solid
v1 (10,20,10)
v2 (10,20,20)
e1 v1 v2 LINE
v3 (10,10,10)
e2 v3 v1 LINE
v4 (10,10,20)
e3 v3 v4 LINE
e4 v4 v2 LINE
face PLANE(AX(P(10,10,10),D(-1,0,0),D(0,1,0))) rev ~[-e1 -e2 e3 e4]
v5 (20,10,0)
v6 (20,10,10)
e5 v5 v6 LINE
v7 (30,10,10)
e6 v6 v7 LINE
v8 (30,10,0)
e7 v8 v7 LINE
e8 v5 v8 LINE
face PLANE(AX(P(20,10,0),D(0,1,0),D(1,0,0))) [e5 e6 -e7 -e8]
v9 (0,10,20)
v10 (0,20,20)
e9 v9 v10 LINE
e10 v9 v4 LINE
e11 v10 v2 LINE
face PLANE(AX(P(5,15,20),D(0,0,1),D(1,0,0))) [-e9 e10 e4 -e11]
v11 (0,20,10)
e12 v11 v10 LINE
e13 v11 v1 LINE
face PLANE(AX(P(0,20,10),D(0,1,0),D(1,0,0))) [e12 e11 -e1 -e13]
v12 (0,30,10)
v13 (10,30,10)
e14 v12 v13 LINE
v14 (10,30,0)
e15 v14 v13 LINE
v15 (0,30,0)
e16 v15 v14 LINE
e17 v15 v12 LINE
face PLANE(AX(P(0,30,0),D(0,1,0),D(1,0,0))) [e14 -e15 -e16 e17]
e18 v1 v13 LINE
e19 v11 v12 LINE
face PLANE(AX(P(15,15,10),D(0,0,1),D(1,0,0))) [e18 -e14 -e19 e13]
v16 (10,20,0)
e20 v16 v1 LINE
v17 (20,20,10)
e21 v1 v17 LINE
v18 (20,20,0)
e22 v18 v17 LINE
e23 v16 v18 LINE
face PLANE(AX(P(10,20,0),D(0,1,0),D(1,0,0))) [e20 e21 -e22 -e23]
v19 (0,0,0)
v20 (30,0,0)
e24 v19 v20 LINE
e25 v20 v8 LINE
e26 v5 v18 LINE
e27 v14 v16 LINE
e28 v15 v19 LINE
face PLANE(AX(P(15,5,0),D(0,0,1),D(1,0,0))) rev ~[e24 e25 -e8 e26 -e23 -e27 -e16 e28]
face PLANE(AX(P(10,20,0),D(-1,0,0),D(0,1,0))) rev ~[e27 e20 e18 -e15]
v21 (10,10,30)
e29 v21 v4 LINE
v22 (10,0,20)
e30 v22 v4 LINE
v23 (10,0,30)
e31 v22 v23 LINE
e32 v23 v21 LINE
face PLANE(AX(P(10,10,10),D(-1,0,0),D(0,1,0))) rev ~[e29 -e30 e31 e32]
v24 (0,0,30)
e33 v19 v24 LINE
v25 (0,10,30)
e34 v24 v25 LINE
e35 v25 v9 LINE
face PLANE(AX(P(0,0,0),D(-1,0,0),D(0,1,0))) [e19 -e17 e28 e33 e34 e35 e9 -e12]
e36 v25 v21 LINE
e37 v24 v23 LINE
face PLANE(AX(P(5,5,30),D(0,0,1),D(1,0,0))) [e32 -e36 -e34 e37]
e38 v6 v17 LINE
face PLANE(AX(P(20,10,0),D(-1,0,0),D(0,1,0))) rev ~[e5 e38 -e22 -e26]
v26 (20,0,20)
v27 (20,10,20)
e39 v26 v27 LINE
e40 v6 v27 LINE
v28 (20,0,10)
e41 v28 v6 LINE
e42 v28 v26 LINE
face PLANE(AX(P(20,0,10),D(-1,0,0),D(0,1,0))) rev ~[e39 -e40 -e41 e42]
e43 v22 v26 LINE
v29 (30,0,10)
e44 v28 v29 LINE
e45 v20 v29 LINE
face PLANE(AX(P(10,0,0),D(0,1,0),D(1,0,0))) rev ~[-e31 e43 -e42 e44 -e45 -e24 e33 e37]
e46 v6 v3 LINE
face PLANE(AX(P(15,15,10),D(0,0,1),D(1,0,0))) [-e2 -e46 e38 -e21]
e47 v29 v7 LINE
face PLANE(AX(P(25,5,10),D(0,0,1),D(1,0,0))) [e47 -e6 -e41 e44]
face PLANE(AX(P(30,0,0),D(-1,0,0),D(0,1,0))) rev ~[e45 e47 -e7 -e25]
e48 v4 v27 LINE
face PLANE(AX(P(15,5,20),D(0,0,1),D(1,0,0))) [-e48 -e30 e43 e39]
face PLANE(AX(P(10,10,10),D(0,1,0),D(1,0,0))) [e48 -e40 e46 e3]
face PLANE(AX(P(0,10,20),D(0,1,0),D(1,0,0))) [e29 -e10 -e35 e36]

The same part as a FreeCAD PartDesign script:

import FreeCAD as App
import Part
import Sketcher
from FreeCAD import Vector


def add_polygon(sketch, points):
    """Adds a closed chain of lines whose ends are joined by coincident constraints."""
    first, n = sketch.GeometryCount, len(points)
    for a, b in zip(points, points[1:] + points[:1]):
        sketch.addGeometry(Part.LineSegment(App.Vector(*a, 0), App.Vector(*b, 0)), False)
    for i in range(n):
        sketch.addConstraint(Sketcher.Constraint("Coincident", first + i, 2, first + (i + 1) % n, 1))

doc = App.newDocument("Part")
body = doc.addObject("PartDesign::Body", "Body")

# Sketch on XY plane
sketch1 = body.newObject("Sketcher::SketchObject", "Sketch")
sketch1.AttachmentSupport = (doc.getObject("XY_Plane"), [""])
sketch1.MapMode = "FlatFace"
add_polygon(sketch1, [(20, 10), (20, 0), (30, 0), (30, 10)])  # lines 0-3
sketch1.addConstraint([
    Sketcher.Constraint("Vertical", 0),
    Sketcher.Constraint("Horizontal", 1),
    Sketcher.Constraint("Vertical", 2),
    Sketcher.Constraint("Horizontal", 3),
    Sketcher.Constraint("PointOnObject", 0, 2, -1),
    Sketcher.Constraint("Equal", 3, 0),
    Sketcher.Constraint("DistanceX", 1, 1, 1, 2, 10.0),
    Sketcher.Constraint("DistanceX", -1, 1, 0, 2, 20.0),
])
pad1 = body.newObject("PartDesign::Pad", "Pad")
pad1.Profile = sketch1
pad1.Length = 10
body2 = doc.addObject("PartDesign::Body", "Body001")

# Sketch on XY plane
sketch2 = body2.newObject("Sketcher::SketchObject", "Sketch001")
sketch2.AttachmentSupport = (doc.getObject("XY_Plane001"), [""])
sketch2.MapMode = "FlatFace"
add_polygon(sketch2, [(0, 30), (0, 20), (10, 20), (10, 30)])  # lines 0-3
sketch2.addConstraint([
    Sketcher.Constraint("Vertical", 0),
    Sketcher.Constraint("Horizontal", 1),
    Sketcher.Constraint("Vertical", 2),
    Sketcher.Constraint("Horizontal", 3),
    Sketcher.Constraint("PointOnObject", 0, 2, -2),
    Sketcher.Constraint("Equal", 3, 0),
    Sketcher.Constraint("DistanceX", 1, 1, 1, 2, 10.0),
    Sketcher.Constraint("DistanceY", -1, 1, 0, 2, 20.0),
])
pad2 = body2.newObject("PartDesign::Pad", "Pad001")
pad2.Profile = sketch2
pad2.Length = 10
body3 = doc.addObject("PartDesign::Body", "Body002")

# Sketch on XY plane
sketch3 = body3.newObject("Sketcher::SketchObject", "Sketch002")
sketch3.AttachmentSupport = (doc.getObject("XY_Plane002"), [""])
sketch3.MapMode = "FlatFace"
add_polygon(sketch3, [(10, 20), (10, 10), (20, 10), (20, 20)])  # lines 0-3
sketch3.addConstraint([
    Sketcher.Constraint("Vertical", 0),
    Sketcher.Constraint("Horizontal", 1),
    Sketcher.Constraint("Vertical", 2),
    Sketcher.Constraint("Horizontal", 3),
    Sketcher.Constraint("Equal", 3, 0),
    Sketcher.Constraint("DistanceX", 1, 1, 1, 2, 10.0),
    Sketcher.Constraint("DistanceX", -1, 1, 0, 2, 10.0),
    Sketcher.Constraint("DistanceY", -1, 1, 0, 2, 10.0),
])
pad3 = body3.newObject("PartDesign::Pad", "Pad002")
pad3.Profile = sketch3
pad3.Length = 10
body4 = doc.addObject("PartDesign::Body", "Body003")

# Sketch on XY plane
sketch4 = body4.newObject("Sketcher::SketchObject", "Sketch003")
sketch4.AttachmentSupport = (doc.getObject("XY_Plane003"), [""])
sketch4.MapMode = "FlatFace"
sketch4.AttachmentOffset = App.Placement(Vector(0, 0, 10), App.Rotation())
add_polygon(sketch4, [(0, 10), (0, 0), (10, 0), (10, 10)])  # lines 0-3
sketch4.addConstraint([
    Sketcher.Constraint("Vertical", 0),
    Sketcher.Constraint("Horizontal", 1),
    Sketcher.Constraint("Vertical", 2),
    Sketcher.Constraint("Horizontal", 3),
    Sketcher.Constraint("Coincident", 0, 2, -1, 1),
    Sketcher.Constraint("Equal", 3, 0),
    Sketcher.Constraint("DistanceX", 1, 1, 1, 2, 10.0),
])
pad4 = body4.newObject("PartDesign::Pad", "Pad003")
pad4.Profile = sketch4
pad4.Length = 10
body5 = doc.addObject("PartDesign::Body", "Body004")

# Sketch on XY plane
sketch5 = body5.newObject("Sketcher::SketchObject", "Sketch004")
sketch5.AttachmentSupport = (doc.getObject("XY_Plane004"), [""])
sketch5.MapMode = "FlatFace"
sketch5.AttachmentOffset = App.Placement(Vector(0, 0, 20), App.Rotation())
add_polygon(sketch5, [(0, 10), (0, 0), (10, 0), (10, 10)])  # lines 0-3
sketch5.addConstraint([
    Sketcher.Constraint("Vertical", 0),
    Sketcher.Constraint("Horizontal", 1),
    Sketcher.Constraint("Vertical", 2),
    Sketcher.Constraint("Horizontal", 3),
    Sketcher.Constraint("Coincident", 0, 2, -1, 1),
    Sketcher.Constraint("Equal", 3, 0),
    Sketcher.Constraint("DistanceX", 1, 1, 1, 2, 10.0),
])
pad5 = body5.newObject("PartDesign::Pad", "Pad004")
pad5.Profile = sketch5
pad5.Length = 10
body6 = doc.addObject("PartDesign::Body", "Body005")

# Sketch on XY plane
sketch6 = body6.newObject("Sketcher::SketchObject", "Sketch005")
sketch6.AttachmentSupport = (doc.getObject("XY_Plane005"), [""])
sketch6.MapMode = "FlatFace"
sketch6.AttachmentOffset = App.Placement(Vector(0, 0, 10), App.Rotation())
add_polygon(sketch6, [(0, 20), (0, 10), (10, 10), (10, 20)])  # lines 0-3
sketch6.addConstraint([
    Sketcher.Constraint("Vertical", 0),
    Sketcher.Constraint("Horizontal", 1),
    Sketcher.Constraint("Vertical", 2),
    Sketcher.Constraint("Horizontal", 3),
    Sketcher.Constraint("PointOnObject", 0, 2, -2),
    Sketcher.Constraint("Equal", 3, 0),
    Sketcher.Constraint("DistanceX", 1, 1, 1, 2, 10.0),
    Sketcher.Constraint("DistanceY", -1, 1, 0, 2, 10.0),
])
pad6 = body6.newObject("PartDesign::Pad", "Pad005")
pad6.Profile = sketch6
pad6.Length = 10
body7 = doc.addObject("PartDesign::Body", "Body006")

# Sketch on XY plane
sketch7 = body7.newObject("Sketcher::SketchObject", "Sketch006")
sketch7.AttachmentSupport = (doc.getObject("XY_Plane006"), [""])
sketch7.MapMode = "FlatFace"
sketch7.AttachmentOffset = App.Placement(Vector(0, 0, 10), App.Rotation())
add_polygon(sketch7, [(10, 10), (10, 0), (20, 0), (20, 10)])  # lines 0-3
sketch7.addConstraint([
    Sketcher.Constraint("Vertical", 0),
    Sketcher.Constraint("Horizontal", 1),
    Sketcher.Constraint("Vertical", 2),
    Sketcher.Constraint("Horizontal", 3),
    Sketcher.Constraint("PointOnObject", 0, 2, -1),
    Sketcher.Constraint("Equal", 3, 0),
    Sketcher.Constraint("DistanceX", 1, 1, 1, 2, 10.0),
    Sketcher.Constraint("DistanceX", -1, 1, 0, 2, 10.0),
])
pad7 = body7.newObject("PartDesign::Pad", "Pad006")
pad7.Profile = sketch7
pad7.Length = 10
body8 = doc.addObject("PartDesign::Body", "Body007")

# Sketch on XY plane
sketch8 = body8.newObject("Sketcher::SketchObject", "Sketch007")
sketch8.AttachmentSupport = (doc.getObject("XY_Plane007"), [""])
sketch8.MapMode = "FlatFace"
add_polygon(sketch8, [(0, 10), (0, 0), (10, 0), (10, 10)])  # lines 0-3
sketch8.addConstraint([
    Sketcher.Constraint("Vertical", 0),
    Sketcher.Constraint("Horizontal", 1),
    Sketcher.Constraint("Vertical", 2),
    Sketcher.Constraint("Horizontal", 3),
    Sketcher.Constraint("Coincident", 0, 2, -1, 1),
    Sketcher.Constraint("Equal", 3, 0),
    Sketcher.Constraint("DistanceX", 1, 1, 1, 2, 10.0),
])
pad8 = body8.newObject("PartDesign::Pad", "Pad007")
pad8.Profile = sketch8
pad8.Length = 10
body9 = doc.addObject("PartDesign::Body", "Body008")

# Sketch on XY plane
sketch9 = body9.newObject("Sketcher::SketchObject", "Sketch008")
sketch9.AttachmentSupport = (doc.getObject("XY_Plane008"), [""])
sketch9.MapMode = "FlatFace"
add_polygon(sketch9, [(10, 10), (10, 0), (20, 0), (20, 10)])  # lines 0-3
sketch9.addConstraint([
    Sketcher.Constraint("Vertical", 0),
    Sketcher.Constraint("Horizontal", 1),
    Sketcher.Constraint("Vertical", 2),
    Sketcher.Constraint("Horizontal", 3),
    Sketcher.Constraint("PointOnObject", 0, 2, -1),
    Sketcher.Constraint("Equal", 3, 0),
    Sketcher.Constraint("DistanceX", 1, 1, 1, 2, 10.0),
    Sketcher.Constraint("DistanceX", -1, 1, 0, 2, 10.0),
])
pad9 = body9.newObject("PartDesign::Pad", "Pad008")
pad9.Profile = sketch9
pad9.Length = 10
body10 = doc.addObject("PartDesign::Body", "Body009")
body10.AllowCompound = True

# Sketch on XY plane
sketch10 = body10.newObject("Sketcher::SketchObject", "Sketch009")
sketch10.AttachmentSupport = (doc.getObject("XY_Plane009"), [""])
sketch10.MapMode = "FlatFace"
add_polygon(sketch10, [(0, 20), (0, 10), (10, 10), (10, 20)])  # lines 0-3
sketch10.addConstraint([
    Sketcher.Constraint("Vertical", 0),
    Sketcher.Constraint("Horizontal", 1),
    Sketcher.Constraint("Vertical", 2),
    Sketcher.Constraint("Horizontal", 3),
    Sketcher.Constraint("PointOnObject", 0, 2, -2),
    Sketcher.Constraint("Equal", 3, 0),
    Sketcher.Constraint("DistanceX", 1, 1, 1, 2, 10.0),
    Sketcher.Constraint("DistanceY", -1, 1, 0, 2, 10.0),
])
pad10 = body10.newObject("PartDesign::Pad", "Pad009")
pad10.Profile = sketch10
pad10.Length = 10
doc.recompute()

boolean = body10.newObject("PartDesign::Boolean", "Boolean")
boolean.Type = "Fuse"
boolean.addObjects([body])
doc.recompute()

boolean2 = body10.newObject("PartDesign::Boolean", "Boolean001")
boolean2.Type = "Fuse"
boolean2.addObjects([body2])
doc.recompute()

boolean3 = body10.newObject("PartDesign::Boolean", "Boolean002")
boolean3.Type = "Fuse"
boolean3.addObjects([body3])
doc.recompute()

boolean4 = body10.newObject("PartDesign::Boolean", "Boolean003")
boolean4.Type = "Fuse"
boolean4.addObjects([body4])
doc.recompute()

boolean5 = body10.newObject("PartDesign::Boolean", "Boolean004")
boolean5.Type = "Fuse"
boolean5.addObjects([body5])
doc.recompute()

boolean6 = body10.newObject("PartDesign::Boolean", "Boolean005")
boolean6.Type = "Fuse"
boolean6.addObjects([body6])
doc.recompute()

boolean7 = body10.newObject("PartDesign::Boolean", "Boolean006")
boolean7.Type = "Fuse"
boolean7.addObjects([body7])
doc.recompute()

boolean8 = body10.newObject("PartDesign::Boolean", "Boolean007")
boolean8.Type = "Fuse"
boolean8.addObjects([body8])
doc.recompute()

boolean9 = body10.newObject("PartDesign::Boolean", "Boolean008")
boolean9.Type = "Fuse"
boolean9.addObjects([body9])

doc.recompute()
